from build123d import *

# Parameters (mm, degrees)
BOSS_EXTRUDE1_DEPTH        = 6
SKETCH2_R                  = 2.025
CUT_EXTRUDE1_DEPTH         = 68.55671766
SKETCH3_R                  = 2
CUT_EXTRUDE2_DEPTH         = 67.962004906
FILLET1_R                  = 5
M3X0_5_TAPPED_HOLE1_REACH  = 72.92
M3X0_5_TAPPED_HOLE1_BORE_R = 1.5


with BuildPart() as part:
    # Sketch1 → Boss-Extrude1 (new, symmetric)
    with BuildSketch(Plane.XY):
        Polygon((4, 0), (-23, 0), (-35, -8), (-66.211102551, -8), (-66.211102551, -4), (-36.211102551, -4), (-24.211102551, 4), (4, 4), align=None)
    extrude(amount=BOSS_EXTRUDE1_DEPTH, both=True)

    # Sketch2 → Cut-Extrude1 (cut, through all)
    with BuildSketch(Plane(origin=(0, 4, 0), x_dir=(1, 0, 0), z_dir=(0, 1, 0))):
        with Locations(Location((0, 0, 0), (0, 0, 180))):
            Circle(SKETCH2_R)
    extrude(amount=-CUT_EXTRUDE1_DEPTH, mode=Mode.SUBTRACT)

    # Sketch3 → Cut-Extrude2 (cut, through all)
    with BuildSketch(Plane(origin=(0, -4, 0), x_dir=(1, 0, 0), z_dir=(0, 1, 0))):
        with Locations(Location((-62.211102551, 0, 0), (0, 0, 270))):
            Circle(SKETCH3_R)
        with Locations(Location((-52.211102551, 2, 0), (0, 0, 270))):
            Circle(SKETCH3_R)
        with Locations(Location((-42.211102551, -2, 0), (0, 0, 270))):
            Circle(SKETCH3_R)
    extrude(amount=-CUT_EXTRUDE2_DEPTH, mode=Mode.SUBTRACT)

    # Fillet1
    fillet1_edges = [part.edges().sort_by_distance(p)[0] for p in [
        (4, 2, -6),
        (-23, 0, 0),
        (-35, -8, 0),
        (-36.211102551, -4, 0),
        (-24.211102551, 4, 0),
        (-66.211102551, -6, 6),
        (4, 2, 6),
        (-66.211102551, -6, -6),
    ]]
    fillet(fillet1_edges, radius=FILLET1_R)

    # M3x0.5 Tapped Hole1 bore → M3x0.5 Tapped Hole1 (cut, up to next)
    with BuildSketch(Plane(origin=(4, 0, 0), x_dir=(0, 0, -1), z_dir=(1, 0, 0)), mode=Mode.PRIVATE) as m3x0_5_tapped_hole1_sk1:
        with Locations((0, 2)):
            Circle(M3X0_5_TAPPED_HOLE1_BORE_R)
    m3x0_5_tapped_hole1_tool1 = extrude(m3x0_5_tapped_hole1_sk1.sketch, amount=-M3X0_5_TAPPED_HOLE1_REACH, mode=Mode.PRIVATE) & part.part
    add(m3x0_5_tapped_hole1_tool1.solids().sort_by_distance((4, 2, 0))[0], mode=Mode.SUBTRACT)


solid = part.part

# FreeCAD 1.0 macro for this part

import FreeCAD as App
import Part
import Sketcher
Q = App.Units.Quantity


def edges_at(feature, points):
    """Names of the edges that pass closest to the given points."""
    edges = feature.Shape.Edges
    near = lambda p: min(range(len(edges)), key=lambda i: edges[i].distToShape(Part.Vertex(*p))[0])
    return sorted({f"Edge{near(p) + 1}" for p in points})


def add_polygon(sketch, points):
    """Adds a closed chain of lines whose ends are joined by coincident constraints."""
    first, n = sketch.GeometryCount, len(points)
    for a, b in zip(points, points[1:] + points[:1]):
        sketch.addGeometry(Part.LineSegment(App.Vector(*a, 0), App.Vector(*b, 0)), False)
    for i in range(n):
        sketch.addConstraint(Sketcher.Constraint("Coincident", first + i, 2, first + (i + 1) % n, 1))

doc = App.newDocument("Part")
body = doc.addObject("PartDesign::Body", "Body")

# Sketch on XY plane
sketch1 = body.newObject("Sketcher::SketchObject", "Sketch")
sketch1.AttachmentSupport = (doc.getObject("XY_Plane"), [""])
sketch1.MapMode = "FlatFace"
add_polygon(sketch1, [(-23, 0), (4, 0), (4, 4), (-24.2, 4), (-36.2, -4), (-66.2, -4), (-66.2, -8), (-35, -8)])  # lines 0-7
sketch1.addConstraint([
    Sketcher.Constraint("Horizontal", 0),
    Sketcher.Constraint("Vertical", 1),
    Sketcher.Constraint("Horizontal", 2),
    Sketcher.Constraint("Horizontal", 4),
    Sketcher.Constraint("Vertical", 5),
    Sketcher.Constraint("Horizontal", 6),
    Sketcher.Constraint("PointOnObject", 0, 2, -1),
    Sketcher.Constraint("Parallel", 3, 7),
    Sketcher.Constraint("Equal", 1, 5),
    Sketcher.Constraint("DistanceX", 0, 1, 0, 2, Q("27 mm")),
    Sketcher.Constraint("DistanceX", 4, 2, 4, 1, Q("30 mm")),
    Sketcher.Constraint("DistanceY", 1, 1, 1, 2, Q("4 mm")),
    Sketcher.Constraint("DistanceX", -1, 1, 0, 2, Q("4 mm")),
    Sketcher.Constraint("DistanceY", 3, 2, -1, 1, Q("4 mm")),
    Sketcher.Constraint("DistanceX", 6, 2, -1, 1, Q("35 mm")),
    Sketcher.Constraint("DistanceX", 2, 2, 2, 1, Q("28.211103 mm")),
])
pad1 = body.newObject("PartDesign::Pad", "Pad")
pad1.Profile = sketch1
pad1.Length = 12
pad1.Midplane = True

# Sketch on XZ plane
sketch2 = body.newObject("Sketcher::SketchObject", "Sketch001")
sketch2.AttachmentSupport = (doc.getObject("XZ_Plane"), [""])
sketch2.MapMode = "FlatFace"
sketch2.AttachmentOffset = App.Placement(App.Vector(0, 0, -4), App.Rotation())
sketch2.addGeometry(Part.Circle(App.Vector(0, 0, 0), App.Vector(0, 0, 1), 2), False)
sketch2.addConstraint([
    Sketcher.Constraint("Coincident", 0, 3, -1, 1),
    Sketcher.Constraint("Diameter", 0, Q("4.05 mm")),
])
pocket1 = body.newObject("PartDesign::Pocket", "Pocket")
pocket1.Profile = sketch2
pocket1.Type = "ThroughAll"
pocket1.Reversed = True

# Sketch on XZ plane
sketch3 = body.newObject("Sketcher::SketchObject", "Sketch002")
sketch3.AttachmentSupport = (doc.getObject("XZ_Plane"), [""])
sketch3.MapMode = "FlatFace"
sketch3.AttachmentOffset = App.Placement(App.Vector(0, 0, 4), App.Rotation())
sketch3.addGeometry([
    Part.Circle(App.Vector(-62.2, 0, 0), App.Vector(0, 0, 1), 2),
    Part.Circle(App.Vector(-52.2, -2, 0), App.Vector(0, 0, 1), 2),
    Part.Circle(App.Vector(-42.2, 2, 0), App.Vector(0, 0, 1), 2),
], False)
sketch3.addConstraint([
    Sketcher.Constraint("Equal", 0, 1),
    Sketcher.Constraint("Equal", 1, 2),
    Sketcher.Constraint("PointOnObject", 0, 3, -1),
    Sketcher.Constraint("Diameter", 0, Q("4 mm")),
    Sketcher.Constraint("DistanceY", 1, 3, -1, 1, Q("2 mm")),
    Sketcher.Constraint("DistanceY", -1, 1, 2, 3, Q("2 mm")),
    Sketcher.Constraint("DistanceX", 0, 3, 1, 3, Q("10 mm")),
    Sketcher.Constraint("DistanceX", 1, 3, 2, 3, Q("10 mm")),
    Sketcher.Constraint("DistanceX", 0, 3, -1, 1, Q("62.211103 mm")),
])
pocket2 = body.newObject("PartDesign::Pocket", "Pocket001")
pocket2.Profile = sketch3
pocket2.Type = "ThroughAll"
pocket2.Reversed = True
doc.recompute()

fillet = body.newObject("PartDesign::Fillet", "Fillet")
fillet.Base = (pocket2, edges_at(pocket2, [
    (4, 2, -6),
    (-23, 0, 0),
    (-35, -8, 0),
    (-36.211, -4, 0),
    (-24.211, 4, 0),
    (-66.211, -6, 6),
    (4, 2, 6),
    (-66.211, -6, -6),
]))
fillet.Radius = 5

# Sketch on YZ plane
sketch4 = body.newObject("Sketcher::SketchObject", "Sketch003")
sketch4.AttachmentSupport = (doc.getObject("YZ_Plane"), [""])
sketch4.MapMode = "FlatFace"
sketch4.AttachmentOffset = App.Placement(App.Vector(0, 0, 4), App.Rotation())
sketch4.addGeometry(Part.Circle(App.Vector(2, 0, 0), App.Vector(0, 0, 1), 1.5), False)
sketch4.addConstraint([
    Sketcher.Constraint("PointOnObject", 0, 3, -1),
    Sketcher.Constraint("Diameter", 0, Q("3 mm")),
    Sketcher.Constraint("DistanceX", -1, 1, 0, 3, Q("2 mm")),
])
pocket3 = body.newObject("PartDesign::Pocket", "Pocket002")
pocket3.Profile = sketch4
pocket3.Length = 2.639623

doc.recompute()
